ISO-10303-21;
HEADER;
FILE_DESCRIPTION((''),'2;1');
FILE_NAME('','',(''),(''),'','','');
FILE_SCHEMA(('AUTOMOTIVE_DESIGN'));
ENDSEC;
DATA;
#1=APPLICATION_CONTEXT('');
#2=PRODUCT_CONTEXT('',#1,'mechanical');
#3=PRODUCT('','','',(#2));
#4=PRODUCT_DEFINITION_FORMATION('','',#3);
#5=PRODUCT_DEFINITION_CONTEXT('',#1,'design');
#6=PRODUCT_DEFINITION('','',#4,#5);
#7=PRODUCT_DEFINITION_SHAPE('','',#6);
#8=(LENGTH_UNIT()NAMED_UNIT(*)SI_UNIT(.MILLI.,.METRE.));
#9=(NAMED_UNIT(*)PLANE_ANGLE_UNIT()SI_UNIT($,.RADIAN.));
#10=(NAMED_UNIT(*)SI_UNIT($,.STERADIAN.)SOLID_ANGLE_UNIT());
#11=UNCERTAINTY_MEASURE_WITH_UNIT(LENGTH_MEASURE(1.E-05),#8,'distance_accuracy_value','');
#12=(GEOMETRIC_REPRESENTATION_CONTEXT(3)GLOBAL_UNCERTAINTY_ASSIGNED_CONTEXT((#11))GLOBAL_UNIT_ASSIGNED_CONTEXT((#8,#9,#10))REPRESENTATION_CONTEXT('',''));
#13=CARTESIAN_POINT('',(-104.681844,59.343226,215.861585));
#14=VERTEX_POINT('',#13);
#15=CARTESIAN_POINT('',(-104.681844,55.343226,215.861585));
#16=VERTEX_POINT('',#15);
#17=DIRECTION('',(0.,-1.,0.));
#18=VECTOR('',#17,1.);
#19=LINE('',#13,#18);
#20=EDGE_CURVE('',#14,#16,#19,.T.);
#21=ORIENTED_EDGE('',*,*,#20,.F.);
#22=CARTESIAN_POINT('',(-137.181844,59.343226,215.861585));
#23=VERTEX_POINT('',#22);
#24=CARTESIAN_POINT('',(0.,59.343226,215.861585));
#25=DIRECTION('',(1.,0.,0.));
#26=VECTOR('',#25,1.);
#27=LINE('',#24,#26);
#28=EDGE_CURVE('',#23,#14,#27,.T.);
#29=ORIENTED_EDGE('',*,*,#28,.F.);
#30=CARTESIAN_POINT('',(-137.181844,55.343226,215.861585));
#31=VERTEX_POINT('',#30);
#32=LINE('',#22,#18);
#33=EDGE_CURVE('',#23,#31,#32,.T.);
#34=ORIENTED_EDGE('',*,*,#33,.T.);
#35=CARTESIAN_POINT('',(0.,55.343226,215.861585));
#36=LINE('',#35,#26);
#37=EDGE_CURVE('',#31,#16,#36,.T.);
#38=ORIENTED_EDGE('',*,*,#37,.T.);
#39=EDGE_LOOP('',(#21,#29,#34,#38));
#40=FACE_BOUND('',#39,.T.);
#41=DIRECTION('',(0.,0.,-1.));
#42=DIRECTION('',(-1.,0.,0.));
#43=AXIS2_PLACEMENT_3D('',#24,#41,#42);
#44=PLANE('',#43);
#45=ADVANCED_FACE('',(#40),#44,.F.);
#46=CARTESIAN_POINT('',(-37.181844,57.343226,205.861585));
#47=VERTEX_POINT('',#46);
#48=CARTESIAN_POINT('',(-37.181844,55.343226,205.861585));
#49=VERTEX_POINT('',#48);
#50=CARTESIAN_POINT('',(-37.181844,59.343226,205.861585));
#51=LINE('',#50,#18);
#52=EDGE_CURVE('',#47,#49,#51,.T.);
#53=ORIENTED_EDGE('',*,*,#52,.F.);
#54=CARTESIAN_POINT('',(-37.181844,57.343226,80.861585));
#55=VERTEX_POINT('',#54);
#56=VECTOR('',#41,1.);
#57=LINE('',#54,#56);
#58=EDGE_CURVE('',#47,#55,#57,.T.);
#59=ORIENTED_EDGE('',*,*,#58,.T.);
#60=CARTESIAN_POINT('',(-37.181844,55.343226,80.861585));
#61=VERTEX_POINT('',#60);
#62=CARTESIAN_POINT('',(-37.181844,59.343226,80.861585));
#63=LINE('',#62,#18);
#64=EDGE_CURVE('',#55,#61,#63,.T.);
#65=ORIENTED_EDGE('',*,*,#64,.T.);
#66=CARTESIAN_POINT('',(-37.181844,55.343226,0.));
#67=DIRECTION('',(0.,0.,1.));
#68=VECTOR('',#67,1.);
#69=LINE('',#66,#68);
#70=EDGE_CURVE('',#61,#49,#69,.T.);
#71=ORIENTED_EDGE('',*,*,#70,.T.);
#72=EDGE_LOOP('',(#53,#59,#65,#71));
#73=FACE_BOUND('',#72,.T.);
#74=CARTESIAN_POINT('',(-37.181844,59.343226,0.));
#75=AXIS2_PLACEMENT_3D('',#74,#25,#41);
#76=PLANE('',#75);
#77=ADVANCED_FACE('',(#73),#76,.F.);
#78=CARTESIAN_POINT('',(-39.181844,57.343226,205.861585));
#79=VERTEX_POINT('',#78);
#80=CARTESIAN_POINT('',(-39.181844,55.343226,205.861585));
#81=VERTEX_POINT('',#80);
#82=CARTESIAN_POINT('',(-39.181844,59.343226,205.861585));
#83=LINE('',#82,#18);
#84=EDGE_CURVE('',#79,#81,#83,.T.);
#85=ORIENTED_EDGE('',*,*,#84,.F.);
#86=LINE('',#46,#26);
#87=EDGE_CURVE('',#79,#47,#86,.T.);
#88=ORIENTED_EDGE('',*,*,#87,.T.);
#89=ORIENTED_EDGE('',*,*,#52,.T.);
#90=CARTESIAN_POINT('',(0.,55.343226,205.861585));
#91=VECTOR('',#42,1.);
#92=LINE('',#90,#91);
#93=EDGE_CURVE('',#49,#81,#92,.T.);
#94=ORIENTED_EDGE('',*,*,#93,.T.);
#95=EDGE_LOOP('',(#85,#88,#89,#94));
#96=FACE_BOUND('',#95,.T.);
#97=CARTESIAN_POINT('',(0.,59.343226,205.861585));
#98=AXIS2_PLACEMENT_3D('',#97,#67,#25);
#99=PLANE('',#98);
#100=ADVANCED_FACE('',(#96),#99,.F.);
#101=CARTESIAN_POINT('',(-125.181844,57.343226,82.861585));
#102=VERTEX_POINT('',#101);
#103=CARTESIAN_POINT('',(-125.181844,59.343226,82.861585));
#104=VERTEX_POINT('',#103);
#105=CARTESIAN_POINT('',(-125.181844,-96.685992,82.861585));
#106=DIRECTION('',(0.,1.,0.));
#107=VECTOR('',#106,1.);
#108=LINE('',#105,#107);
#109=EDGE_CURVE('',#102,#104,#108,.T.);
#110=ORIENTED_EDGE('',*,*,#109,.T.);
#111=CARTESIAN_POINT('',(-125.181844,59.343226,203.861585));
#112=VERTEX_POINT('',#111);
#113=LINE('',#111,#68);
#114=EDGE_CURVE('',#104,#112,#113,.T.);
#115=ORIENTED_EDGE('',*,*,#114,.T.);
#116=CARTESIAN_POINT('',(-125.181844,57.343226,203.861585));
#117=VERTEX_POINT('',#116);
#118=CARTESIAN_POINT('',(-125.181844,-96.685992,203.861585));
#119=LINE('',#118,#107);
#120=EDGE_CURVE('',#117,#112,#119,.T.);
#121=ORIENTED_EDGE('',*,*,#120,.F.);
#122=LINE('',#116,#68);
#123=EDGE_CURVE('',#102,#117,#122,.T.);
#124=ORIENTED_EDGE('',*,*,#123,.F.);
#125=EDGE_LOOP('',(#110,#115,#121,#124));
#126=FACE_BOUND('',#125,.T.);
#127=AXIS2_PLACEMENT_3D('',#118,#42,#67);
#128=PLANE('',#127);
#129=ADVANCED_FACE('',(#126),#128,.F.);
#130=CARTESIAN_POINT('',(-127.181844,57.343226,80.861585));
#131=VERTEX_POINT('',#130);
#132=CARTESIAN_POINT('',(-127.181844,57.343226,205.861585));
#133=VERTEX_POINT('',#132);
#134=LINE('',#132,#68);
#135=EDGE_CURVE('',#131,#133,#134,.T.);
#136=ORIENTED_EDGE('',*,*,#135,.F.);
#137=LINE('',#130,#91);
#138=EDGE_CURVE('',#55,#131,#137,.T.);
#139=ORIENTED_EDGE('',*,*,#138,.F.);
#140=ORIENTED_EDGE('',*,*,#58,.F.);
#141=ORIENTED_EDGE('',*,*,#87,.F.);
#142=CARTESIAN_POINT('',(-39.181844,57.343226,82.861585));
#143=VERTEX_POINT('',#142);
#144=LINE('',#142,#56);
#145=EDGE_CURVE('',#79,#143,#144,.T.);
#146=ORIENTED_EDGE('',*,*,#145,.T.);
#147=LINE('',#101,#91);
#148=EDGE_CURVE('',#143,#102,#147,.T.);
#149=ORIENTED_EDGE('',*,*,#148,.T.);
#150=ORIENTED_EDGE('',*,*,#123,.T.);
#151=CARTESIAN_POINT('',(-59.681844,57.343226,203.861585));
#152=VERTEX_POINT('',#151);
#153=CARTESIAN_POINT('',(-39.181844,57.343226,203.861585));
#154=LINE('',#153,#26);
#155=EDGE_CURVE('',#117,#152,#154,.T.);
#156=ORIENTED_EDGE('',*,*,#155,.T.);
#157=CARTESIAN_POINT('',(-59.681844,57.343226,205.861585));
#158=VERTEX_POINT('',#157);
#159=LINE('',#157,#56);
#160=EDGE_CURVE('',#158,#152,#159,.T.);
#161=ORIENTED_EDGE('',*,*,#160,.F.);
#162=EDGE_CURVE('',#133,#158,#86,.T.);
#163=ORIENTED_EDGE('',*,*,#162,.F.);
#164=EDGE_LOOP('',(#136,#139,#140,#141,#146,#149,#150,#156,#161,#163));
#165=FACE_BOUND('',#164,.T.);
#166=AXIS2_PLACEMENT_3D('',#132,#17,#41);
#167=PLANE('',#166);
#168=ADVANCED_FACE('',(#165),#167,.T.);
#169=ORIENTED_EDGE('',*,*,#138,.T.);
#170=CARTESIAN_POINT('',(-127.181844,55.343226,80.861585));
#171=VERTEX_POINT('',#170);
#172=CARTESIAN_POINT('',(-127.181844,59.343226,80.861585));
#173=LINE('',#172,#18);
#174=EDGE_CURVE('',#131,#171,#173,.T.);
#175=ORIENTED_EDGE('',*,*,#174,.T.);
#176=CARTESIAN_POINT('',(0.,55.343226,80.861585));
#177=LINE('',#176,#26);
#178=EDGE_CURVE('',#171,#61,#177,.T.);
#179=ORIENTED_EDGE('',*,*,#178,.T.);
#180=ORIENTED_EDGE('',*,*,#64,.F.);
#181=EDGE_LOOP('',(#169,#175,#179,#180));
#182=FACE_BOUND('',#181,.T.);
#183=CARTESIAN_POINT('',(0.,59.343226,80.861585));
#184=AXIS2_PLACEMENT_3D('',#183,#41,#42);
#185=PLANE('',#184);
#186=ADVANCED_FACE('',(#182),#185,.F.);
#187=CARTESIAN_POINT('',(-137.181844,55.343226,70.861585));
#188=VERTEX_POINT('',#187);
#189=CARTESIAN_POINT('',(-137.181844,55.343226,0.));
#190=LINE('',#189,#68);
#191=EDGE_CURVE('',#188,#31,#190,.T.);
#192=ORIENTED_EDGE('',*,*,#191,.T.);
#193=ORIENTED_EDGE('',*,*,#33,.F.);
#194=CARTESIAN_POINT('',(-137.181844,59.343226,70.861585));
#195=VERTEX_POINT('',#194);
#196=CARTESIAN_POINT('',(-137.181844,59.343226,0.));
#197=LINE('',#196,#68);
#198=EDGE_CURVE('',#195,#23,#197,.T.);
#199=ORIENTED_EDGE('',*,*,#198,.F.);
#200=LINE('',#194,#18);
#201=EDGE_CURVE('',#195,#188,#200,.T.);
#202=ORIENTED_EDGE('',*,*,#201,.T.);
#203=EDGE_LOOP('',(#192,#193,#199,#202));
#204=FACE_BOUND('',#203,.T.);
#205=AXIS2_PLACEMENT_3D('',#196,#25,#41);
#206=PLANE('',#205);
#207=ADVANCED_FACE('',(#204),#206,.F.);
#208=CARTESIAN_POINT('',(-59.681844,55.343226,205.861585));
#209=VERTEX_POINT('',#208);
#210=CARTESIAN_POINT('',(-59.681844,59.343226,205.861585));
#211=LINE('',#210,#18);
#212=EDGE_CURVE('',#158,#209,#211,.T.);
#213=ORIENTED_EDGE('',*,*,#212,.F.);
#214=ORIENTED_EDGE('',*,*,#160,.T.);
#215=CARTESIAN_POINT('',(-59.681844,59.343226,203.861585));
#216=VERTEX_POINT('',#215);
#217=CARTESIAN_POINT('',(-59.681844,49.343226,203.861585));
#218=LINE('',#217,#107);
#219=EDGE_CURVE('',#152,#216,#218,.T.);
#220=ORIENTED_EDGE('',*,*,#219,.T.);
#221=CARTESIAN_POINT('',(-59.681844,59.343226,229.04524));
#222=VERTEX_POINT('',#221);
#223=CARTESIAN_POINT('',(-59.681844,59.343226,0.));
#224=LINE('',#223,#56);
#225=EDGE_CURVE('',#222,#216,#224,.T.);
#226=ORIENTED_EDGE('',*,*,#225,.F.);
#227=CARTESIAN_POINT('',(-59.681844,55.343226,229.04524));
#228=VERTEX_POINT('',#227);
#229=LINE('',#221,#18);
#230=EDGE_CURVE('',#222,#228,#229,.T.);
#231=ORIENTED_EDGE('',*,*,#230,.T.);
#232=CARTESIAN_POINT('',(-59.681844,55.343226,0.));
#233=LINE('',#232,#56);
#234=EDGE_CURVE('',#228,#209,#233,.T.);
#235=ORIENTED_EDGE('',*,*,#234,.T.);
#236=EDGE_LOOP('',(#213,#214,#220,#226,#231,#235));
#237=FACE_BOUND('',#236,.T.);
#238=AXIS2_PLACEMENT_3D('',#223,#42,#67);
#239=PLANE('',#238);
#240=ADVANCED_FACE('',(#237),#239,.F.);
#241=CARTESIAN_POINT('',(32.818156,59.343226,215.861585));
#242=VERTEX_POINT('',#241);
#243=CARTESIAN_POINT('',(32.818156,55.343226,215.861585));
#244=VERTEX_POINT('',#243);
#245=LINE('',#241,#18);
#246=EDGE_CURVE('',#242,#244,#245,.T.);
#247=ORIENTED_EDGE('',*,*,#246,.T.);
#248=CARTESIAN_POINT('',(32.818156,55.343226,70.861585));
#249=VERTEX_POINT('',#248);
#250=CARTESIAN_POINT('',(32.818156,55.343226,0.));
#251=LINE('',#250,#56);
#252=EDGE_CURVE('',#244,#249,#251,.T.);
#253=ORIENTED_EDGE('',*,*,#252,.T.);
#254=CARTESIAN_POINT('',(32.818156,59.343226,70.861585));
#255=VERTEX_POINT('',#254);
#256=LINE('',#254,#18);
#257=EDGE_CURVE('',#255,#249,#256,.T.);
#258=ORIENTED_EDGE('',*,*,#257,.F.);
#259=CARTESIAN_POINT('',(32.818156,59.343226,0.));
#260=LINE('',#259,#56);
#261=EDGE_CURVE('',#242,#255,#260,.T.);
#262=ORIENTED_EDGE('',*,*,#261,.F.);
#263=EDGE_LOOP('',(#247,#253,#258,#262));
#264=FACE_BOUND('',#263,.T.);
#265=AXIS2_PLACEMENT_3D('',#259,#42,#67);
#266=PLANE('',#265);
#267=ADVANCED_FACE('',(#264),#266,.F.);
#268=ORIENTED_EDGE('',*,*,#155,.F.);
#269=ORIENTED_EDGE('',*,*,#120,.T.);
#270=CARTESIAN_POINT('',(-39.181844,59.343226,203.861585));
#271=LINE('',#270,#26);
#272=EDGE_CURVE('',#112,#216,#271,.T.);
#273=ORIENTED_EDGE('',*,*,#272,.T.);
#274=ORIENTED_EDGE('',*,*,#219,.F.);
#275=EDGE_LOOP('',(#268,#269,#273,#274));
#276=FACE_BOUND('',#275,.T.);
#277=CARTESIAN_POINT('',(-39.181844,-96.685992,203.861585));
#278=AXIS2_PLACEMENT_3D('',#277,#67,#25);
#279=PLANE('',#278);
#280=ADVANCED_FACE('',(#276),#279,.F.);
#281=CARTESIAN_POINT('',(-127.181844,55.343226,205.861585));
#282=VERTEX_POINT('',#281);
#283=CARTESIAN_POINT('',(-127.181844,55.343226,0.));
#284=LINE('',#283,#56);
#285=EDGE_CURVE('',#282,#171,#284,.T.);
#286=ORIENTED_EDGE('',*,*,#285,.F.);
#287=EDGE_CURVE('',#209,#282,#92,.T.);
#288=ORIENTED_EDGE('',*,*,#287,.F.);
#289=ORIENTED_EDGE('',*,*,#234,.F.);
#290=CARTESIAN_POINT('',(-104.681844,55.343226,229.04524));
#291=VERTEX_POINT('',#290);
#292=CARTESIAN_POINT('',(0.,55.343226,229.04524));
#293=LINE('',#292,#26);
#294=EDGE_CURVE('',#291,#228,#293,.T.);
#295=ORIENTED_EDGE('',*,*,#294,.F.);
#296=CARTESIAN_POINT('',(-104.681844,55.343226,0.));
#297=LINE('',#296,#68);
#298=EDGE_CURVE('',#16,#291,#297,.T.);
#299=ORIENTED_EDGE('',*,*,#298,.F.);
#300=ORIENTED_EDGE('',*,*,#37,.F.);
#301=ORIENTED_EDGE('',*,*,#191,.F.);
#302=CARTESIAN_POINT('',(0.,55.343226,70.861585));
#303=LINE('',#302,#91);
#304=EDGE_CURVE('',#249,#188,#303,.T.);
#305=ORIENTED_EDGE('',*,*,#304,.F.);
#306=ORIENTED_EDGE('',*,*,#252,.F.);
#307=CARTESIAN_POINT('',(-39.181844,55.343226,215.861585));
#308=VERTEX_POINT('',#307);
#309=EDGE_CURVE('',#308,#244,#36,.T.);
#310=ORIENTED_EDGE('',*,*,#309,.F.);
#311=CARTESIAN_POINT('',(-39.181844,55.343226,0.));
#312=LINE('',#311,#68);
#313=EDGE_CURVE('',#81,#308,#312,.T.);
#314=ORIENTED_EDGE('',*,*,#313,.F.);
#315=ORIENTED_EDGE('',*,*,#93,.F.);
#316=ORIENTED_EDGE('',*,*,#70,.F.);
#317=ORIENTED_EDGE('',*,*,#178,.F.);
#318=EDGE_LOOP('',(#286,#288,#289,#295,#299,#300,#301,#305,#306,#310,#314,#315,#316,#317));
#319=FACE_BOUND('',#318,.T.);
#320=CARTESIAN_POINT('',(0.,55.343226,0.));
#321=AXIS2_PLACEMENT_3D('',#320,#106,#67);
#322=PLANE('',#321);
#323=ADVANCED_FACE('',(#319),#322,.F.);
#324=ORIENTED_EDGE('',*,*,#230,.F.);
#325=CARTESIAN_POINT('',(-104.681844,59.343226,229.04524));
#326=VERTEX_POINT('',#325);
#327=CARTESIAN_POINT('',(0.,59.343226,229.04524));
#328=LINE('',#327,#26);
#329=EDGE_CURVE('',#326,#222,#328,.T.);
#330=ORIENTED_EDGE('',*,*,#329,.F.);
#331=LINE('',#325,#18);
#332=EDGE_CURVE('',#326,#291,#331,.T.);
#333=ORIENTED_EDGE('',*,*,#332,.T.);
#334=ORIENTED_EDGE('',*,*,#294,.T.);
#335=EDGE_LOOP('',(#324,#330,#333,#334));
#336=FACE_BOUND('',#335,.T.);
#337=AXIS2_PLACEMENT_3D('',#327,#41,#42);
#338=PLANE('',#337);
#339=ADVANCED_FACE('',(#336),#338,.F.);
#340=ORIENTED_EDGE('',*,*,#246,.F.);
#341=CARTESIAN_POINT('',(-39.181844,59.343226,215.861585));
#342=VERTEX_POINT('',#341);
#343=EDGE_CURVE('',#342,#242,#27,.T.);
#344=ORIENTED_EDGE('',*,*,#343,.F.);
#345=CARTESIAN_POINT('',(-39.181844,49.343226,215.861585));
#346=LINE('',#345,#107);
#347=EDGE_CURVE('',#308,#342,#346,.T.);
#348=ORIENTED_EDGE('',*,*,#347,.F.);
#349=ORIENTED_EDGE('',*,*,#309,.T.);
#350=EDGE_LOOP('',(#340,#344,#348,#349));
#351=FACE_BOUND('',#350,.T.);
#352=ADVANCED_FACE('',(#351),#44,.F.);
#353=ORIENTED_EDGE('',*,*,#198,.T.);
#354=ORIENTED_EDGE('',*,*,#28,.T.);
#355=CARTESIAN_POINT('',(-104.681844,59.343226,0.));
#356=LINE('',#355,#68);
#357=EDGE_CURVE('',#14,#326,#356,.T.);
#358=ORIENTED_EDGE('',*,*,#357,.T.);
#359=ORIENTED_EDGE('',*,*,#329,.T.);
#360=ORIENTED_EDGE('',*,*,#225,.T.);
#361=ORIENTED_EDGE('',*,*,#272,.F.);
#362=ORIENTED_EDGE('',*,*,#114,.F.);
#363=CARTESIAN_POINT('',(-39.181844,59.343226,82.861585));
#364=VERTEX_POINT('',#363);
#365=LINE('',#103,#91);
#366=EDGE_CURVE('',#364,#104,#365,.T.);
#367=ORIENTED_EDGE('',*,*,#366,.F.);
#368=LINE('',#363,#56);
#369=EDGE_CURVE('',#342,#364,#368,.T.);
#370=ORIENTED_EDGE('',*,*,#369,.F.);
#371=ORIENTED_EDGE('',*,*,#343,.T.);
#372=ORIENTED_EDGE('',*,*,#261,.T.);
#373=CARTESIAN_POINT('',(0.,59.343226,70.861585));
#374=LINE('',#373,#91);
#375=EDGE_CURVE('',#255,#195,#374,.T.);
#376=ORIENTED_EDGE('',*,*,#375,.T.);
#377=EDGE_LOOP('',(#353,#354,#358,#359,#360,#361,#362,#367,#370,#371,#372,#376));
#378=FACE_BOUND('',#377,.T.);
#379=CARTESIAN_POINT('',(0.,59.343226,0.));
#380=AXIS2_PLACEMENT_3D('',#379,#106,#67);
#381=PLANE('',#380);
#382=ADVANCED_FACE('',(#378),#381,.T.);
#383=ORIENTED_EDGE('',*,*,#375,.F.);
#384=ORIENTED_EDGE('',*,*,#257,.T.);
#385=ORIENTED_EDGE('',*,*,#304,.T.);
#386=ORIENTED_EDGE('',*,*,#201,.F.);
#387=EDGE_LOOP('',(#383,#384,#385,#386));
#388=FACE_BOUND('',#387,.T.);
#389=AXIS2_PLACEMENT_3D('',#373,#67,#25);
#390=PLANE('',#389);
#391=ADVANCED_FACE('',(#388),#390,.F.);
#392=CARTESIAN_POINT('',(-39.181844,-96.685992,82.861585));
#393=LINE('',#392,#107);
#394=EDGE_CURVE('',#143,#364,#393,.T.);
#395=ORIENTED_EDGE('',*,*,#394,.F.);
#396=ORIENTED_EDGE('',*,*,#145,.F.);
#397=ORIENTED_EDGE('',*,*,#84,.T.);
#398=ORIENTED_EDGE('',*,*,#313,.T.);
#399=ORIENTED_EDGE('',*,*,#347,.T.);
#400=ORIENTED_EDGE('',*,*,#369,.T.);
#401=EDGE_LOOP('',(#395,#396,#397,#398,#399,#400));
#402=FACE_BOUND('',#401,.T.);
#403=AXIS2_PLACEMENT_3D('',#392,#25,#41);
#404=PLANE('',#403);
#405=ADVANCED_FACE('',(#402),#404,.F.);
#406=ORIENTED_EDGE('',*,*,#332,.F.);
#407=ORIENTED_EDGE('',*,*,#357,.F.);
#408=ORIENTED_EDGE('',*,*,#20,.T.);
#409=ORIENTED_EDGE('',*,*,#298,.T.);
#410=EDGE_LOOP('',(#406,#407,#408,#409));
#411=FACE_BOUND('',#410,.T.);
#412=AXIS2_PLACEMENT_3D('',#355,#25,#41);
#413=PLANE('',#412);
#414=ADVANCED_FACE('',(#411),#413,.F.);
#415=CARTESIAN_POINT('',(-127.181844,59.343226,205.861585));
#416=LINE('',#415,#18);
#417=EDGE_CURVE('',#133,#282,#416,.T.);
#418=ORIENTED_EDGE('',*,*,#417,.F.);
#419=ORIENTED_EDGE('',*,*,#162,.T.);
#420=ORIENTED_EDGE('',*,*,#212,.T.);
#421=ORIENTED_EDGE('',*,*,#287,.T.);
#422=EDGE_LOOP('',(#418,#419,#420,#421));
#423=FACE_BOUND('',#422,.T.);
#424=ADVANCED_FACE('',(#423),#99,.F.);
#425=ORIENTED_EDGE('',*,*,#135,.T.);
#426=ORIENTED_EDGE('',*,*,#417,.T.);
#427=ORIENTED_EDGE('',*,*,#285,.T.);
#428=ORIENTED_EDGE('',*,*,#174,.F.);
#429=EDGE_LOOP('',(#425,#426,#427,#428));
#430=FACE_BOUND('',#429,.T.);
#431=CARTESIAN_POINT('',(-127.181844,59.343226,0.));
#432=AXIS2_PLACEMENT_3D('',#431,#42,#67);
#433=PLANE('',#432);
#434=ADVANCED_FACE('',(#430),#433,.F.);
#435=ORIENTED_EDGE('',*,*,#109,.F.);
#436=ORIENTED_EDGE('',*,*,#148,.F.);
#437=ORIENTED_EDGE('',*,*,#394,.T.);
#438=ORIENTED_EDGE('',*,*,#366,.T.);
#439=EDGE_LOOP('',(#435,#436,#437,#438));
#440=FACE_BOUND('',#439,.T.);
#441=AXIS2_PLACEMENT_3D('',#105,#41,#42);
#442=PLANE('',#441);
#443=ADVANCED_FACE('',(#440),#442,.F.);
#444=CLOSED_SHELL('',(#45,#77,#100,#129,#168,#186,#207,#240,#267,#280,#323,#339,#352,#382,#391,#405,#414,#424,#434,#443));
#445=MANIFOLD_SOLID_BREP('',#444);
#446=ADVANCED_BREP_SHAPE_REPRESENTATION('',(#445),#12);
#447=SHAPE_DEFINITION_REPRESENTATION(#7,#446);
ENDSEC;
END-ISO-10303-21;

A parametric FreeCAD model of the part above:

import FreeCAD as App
import Part
import Sketcher

V = App.Vector


def add_polygon(sketch, points):
    """Adds a closed chain of lines whose ends are joined by coincident constraints."""
    first, n = sketch.GeometryCount, len(points)
    for a, b in zip(points, points[1:] + points[:1]):
        sketch.addGeometry(Part.LineSegment(App.Vector(*a, 0), App.Vector(*b, 0)), False)
    for i in range(n):
        sketch.addConstraint(Sketcher.Constraint("Coincident", first + i, 2, first + (i + 1) % n, 1))

doc = App.newDocument("Part")
body = doc.addObject("PartDesign::Body", "Body")

sketch1 = doc.addObject("Sketcher::SketchObject", "Sketch")
body.addObject(sketch1)
sketch1.AttachmentSupport = (doc.XZ_Plane, [""])
sketch1.MapMode = "FlatFace"
sketch1.AttachmentOffset = App.Placement(V(0, 0, -55.343226), App.Rotation())
add_polygon(sketch1, [(-105, 216), (-105, 229), (-60, 229), (-60, 216), (33, 216), (33, 71), (-137, 71), (-137, 216)])
add_polygon(sketch1, [(-37, 206), (-127, 206), (-127, 81), (-37, 81)])
sketch1.addConstraint([
    Sketcher.Constraint("Vertical", 0),
    Sketcher.Constraint("Horizontal", 1),
    Sketcher.Constraint("Vertical", 2),
    Sketcher.Constraint("Horizontal", 3),
    Sketcher.Constraint("Vertical", 4),
    Sketcher.Constraint("Horizontal", 5),
    Sketcher.Constraint("Vertical", 6),
    Sketcher.Constraint("Horizontal", 7),
    Sketcher.Constraint("Horizontal", 8),
    Sketcher.Constraint("Vertical", 9),
    Sketcher.Constraint("Horizontal", 10),
    Sketcher.Constraint("Vertical", 11),
    Sketcher.Constraint("Horizontal", 3, 2, 6, 2),
    Sketcher.Constraint("DistanceX", 1, 1, 1, 2, 45.0),
    Sketcher.Constraint("DistanceX", 5, 2, 5, 1, 170.0),
    Sketcher.Constraint("DistanceX", 8, 2, 8, 1, 90.0),
    Sketcher.Constraint("DistanceY", 4, 2, 4, 1, 145.0),
    Sketcher.Constraint("DistanceY", 9, 2, 9, 1, 125.0),
    Sketcher.Constraint("DistanceX", 3, 1, 3, 2, 92.5),
    Sketcher.Constraint("DistanceX", 6, 2, 8, 2, 10.0),
    Sketcher.Constraint("DistanceY", 8, 2, 6, 2, 10.0),
    Sketcher.Constraint("DistanceY", 0, 1, 0, 2, 13.183656),
    Sketcher.Constraint("DistanceY", -1, 1, 0, 2, 229.04524),
    Sketcher.Constraint("DistanceX", 0, 2, -1, 1, 104.681844),
])
pad1 = doc.addObject("PartDesign::Pad", "Pad")
body.addObject(pad1)
pad1.Profile = sketch1
pad1.Length = 4
pad1.Reversed = True

sketch2 = doc.addObject("Sketcher::SketchObject", "Sketch001")
body.addObject(sketch2)
sketch2.AttachmentSupport = (doc.XZ_Plane, [""])
sketch2.MapMode = "FlatFace"
sketch2.AttachmentOffset = App.Placement(V(0, 0, -59.343226), App.Rotation())
add_polygon(sketch2, [(-127, 81), (-127, 206), (-37, 206), (-37, 81)])
add_polygon(sketch2, [(-39, 204), (-125, 204), (-125, 83), (-39, 83)])
sketch2.addConstraint([
    Sketcher.Constraint("Vertical", 0),
    Sketcher.Constraint("Horizontal", 1),
    Sketcher.Constraint("Vertical", 2),
    Sketcher.Constraint("Horizontal", 3),
    Sketcher.Constraint("Horizontal", 4),
    Sketcher.Constraint("Vertical", 5),
    Sketcher.Constraint("Horizontal", 6),
    Sketcher.Constraint("Vertical", 7),
    Sketcher.Constraint("DistanceX", 1, 1, 1, 2, 90.0),
    Sketcher.Constraint("DistanceX", 4, 2, 4, 1, 86.0),
    Sketcher.Constraint("DistanceY", 0, 1, 0, 2, 125.0),
    Sketcher.Constraint("DistanceY", 5, 2, 5, 1, 121.0),
    Sketcher.Constraint("DistanceX", 0, 2, 4, 2, 2.0),
    Sketcher.Constraint("DistanceY", 4, 2, 0, 2, 2.0),
    Sketcher.Constraint("DistanceX", 0, 2, -1, 1, 127.181844),
    Sketcher.Constraint("DistanceY", -1, 1, 0, 2, 205.861585),
])
pad2 = doc.addObject("PartDesign::Pad", "Pad001")
body.addObject(pad2)
pad2.Profile = sketch2
pad2.Length = 2

sketch3 = doc.addObject("Sketcher::SketchObject", "Sketch002")
body.addObject(sketch3)
sketch3.AttachmentSupport = (doc.XZ_Plane, [""])
sketch3.MapMode = "FlatFace"
sketch3.AttachmentOffset = App.Placement(V(0, 0, -59.343226), App.Rotation())
add_polygon(sketch3, [(-60, 204), (-60, 216), (-39, 216), (-39, 204)])
sketch3.addConstraint([
    Sketcher.Constraint("Vertical", 0),
    Sketcher.Constraint("Horizontal", 1),
    Sketcher.Constraint("Vertical", 2),
    Sketcher.Constraint("Horizontal", 3),
    Sketcher.Constraint("DistanceY", 0, 1, 0, 2, 12.0),
    Sketcher.Constraint("DistanceX", 1, 1, 1, 2, 20.5),
    Sketcher.Constraint("DistanceX", 0, 2, -1, 1, 59.681844),
    Sketcher.Constraint("DistanceY", -1, 1, 0, 2, 215.861585),
])
pocket1 = doc.addObject("PartDesign::Pocket", "Pocket")
body.addObject(pocket1)
pocket1.Profile = sketch3
pocket1.Length = 10
pocket1.Reversed = True

doc.recompute()
